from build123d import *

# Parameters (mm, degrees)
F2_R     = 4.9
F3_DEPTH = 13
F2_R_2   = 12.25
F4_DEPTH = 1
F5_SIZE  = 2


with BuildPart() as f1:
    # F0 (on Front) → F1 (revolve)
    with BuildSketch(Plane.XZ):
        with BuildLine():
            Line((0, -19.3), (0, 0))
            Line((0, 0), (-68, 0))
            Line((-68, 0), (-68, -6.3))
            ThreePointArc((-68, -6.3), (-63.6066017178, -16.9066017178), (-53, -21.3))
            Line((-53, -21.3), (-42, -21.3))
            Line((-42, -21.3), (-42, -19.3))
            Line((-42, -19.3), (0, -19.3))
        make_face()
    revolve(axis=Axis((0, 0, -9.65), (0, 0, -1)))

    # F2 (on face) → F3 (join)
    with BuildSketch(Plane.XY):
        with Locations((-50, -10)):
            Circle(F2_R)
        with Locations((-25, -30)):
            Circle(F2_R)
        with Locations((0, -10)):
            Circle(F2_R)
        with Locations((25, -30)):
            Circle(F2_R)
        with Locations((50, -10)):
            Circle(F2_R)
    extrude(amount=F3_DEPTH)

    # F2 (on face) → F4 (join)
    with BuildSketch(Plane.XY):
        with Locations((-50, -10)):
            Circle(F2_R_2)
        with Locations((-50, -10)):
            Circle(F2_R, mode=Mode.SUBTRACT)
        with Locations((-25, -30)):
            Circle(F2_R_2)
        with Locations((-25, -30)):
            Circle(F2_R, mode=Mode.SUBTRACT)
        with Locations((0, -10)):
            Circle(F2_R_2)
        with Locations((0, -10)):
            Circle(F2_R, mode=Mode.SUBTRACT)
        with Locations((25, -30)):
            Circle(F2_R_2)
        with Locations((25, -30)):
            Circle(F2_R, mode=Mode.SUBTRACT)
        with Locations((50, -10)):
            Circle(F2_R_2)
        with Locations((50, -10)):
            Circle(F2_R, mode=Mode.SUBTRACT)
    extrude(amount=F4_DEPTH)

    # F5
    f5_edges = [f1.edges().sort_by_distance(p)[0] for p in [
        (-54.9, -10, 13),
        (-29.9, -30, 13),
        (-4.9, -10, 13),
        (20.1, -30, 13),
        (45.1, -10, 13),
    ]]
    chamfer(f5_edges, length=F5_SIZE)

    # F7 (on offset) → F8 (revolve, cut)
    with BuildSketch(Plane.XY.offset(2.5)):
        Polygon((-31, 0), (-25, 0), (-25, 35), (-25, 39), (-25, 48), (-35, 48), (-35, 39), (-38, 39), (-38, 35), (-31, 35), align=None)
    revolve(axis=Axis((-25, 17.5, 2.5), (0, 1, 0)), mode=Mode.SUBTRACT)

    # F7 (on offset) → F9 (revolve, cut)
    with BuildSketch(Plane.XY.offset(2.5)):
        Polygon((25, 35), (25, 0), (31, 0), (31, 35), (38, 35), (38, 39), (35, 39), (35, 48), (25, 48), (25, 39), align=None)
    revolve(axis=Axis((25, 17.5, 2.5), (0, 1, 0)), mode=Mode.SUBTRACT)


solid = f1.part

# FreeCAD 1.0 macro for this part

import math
import FreeCAD as App
import Part
import Sketcher

V = App.Vector
Q = App.Units.Quantity


def edges_at(feature, points):
    """Names of the edges that pass closest to the given points."""
    edges = feature.Shape.Edges
    near = lambda p: min(range(len(edges)), key=lambda i: edges[i].distToShape(Part.Vertex(*p))[0])
    return sorted({f"Edge{near(p) + 1}" for p in points})


def add_polygon(sketch, points):
    """Adds a closed chain of lines whose ends are joined by coincident constraints."""
    first, n = sketch.GeometryCount, len(points)
    for a, b in zip(points, points[1:] + points[:1]):
        sketch.addGeometry(Part.LineSegment(App.Vector(*a, 0), App.Vector(*b, 0)), False)
    for i in range(n):
        sketch.addConstraint(Sketcher.Constraint("Coincident", first + i, 2, first + (i + 1) % n, 1))

doc = App.newDocument("Part")
params = doc.addObject("Spreadsheet::Sheet", "Params")
for row, (alias, value) in enumerate([
    ("sketch1_radius", "15 mm"),
    ("sketch1_width", "68 mm"),
    ("sketch1_width2", "11 mm"),
    ("sketch1_height", "2 mm"),
    ("sketch1_height2", "19.3 mm"),
    ("revolution_angle", "360 deg"),
    ("sketch2_diameter", "9.8 mm"),
    ("pad1_length", "13 mm"),
    ("sketch3_diameter", "24.5 mm"),
    ("sketch3_diameter2", "9.8 mm"),
    ("pad2_length", "1 mm"),
    ("chamfer_size", "2 mm"),
    ("sketch4_width", "6 mm"),
    ("sketch4_width2", "10 mm"),
    ("sketch4_width3", "3 mm"),
    ("sketch4_height", "48 mm"),
    ("sketch4_height2", "9 mm"),
    ("groove_angle", "360 deg"),
    ("sketch5_width", "6 mm"),
    ("sketch5_width2", "7 mm"),
    ("sketch5_width3", "3 mm"),
    ("sketch5_height", "35 mm"),
    ("sketch5_height2", "4 mm"),
    ("groove2_angle", "360 deg"),
], start=1):
    params.set(f"A{row}", alias)
    params.set(f"B{row}", "=" + value)
    params.setAlias(f"B{row}", alias)

body = doc.addObject("PartDesign::Body", "Body")

sketch1 = body.newObject("Sketcher::SketchObject", "Sketch")
sketch1.AttachmentSupport = (doc.getObject("XZ_Plane"), [""])
sketch1.MapMode = "FlatFace"
sketch1.addGeometry([
    Part.LineSegment(V(0, -19.3, 0), V(0, 0, 0)),
    Part.LineSegment(V(0, 0, 0), V(-68, 0, 0)),
    Part.LineSegment(V(-68, 0, 0), V(-68, -6.3, 0)),
    Part.ArcOfCircle(Part.Circle(V(-53, -6.3, 0), V(0, 0, 1), 15), math.radians(180), math.radians(270)),
    Part.LineSegment(V(-53, -21.3, 0), V(-42, -21.3, 0)),
    Part.LineSegment(V(-42, -21.3, 0), V(-42, -19.3, 0)),
    Part.LineSegment(V(-42, -19.3, 0), V(0, -19.3, 0)),
], False)
sketch1.addConstraint([
    Sketcher.Constraint("Coincident", 0, 2, 1, 1),
    Sketcher.Constraint("Coincident", 1, 2, 2, 1),
    Sketcher.Constraint("Tangent", 2, 2, 3, 1),
    Sketcher.Constraint("Tangent", 3, 2, 4, 1),
    Sketcher.Constraint("Coincident", 4, 2, 5, 1),
    Sketcher.Constraint("Coincident", 5, 2, 6, 1),
    Sketcher.Constraint("Coincident", 6, 2, 0, 1),
    Sketcher.Constraint("Vertical", 0),
    Sketcher.Constraint("Horizontal", 1),
    Sketcher.Constraint("Vertical", 2),
    Sketcher.Constraint("Horizontal", 4),
    Sketcher.Constraint("Vertical", 5),
    Sketcher.Constraint("Horizontal", 6),
    Sketcher.Constraint("Coincident", 0, 2, -1, 1),
    Sketcher.Constraint("Radius", 3, Q("15 mm")),
    Sketcher.Constraint("DistanceX", 1, 2, 1, 1, Q("68 mm")),
    Sketcher.Constraint("DistanceX", 4, 1, 4, 2, Q("11 mm")),
    Sketcher.Constraint("DistanceY", 5, 1, 5, 2, Q("2 mm")),
    Sketcher.Constraint("DistanceY", 0, 1, 0, 2, Q("19.3 mm")),
])
sketch1.setExpression("Constraints[14]", "Params.sketch1_radius")
sketch1.setExpression("Constraints[15]", "Params.sketch1_width")
sketch1.setExpression("Constraints[16]", "Params.sketch1_width2")
sketch1.setExpression("Constraints[17]", "Params.sketch1_height")
sketch1.setExpression("Constraints[18]", "Params.sketch1_height2")
revolution = body.newObject("PartDesign::Revolution", "Revolution")
revolution.Profile = sketch1
revolution.ReferenceAxis = (sketch1, ["V_Axis"])
revolution.setExpression("Angle", "Params.revolution_angle")

sketch2 = body.newObject("Sketcher::SketchObject", "Sketch001")
sketch2.AttachmentSupport = (doc.getObject("XY_Plane"), [""])
sketch2.MapMode = "FlatFace"
sketch2.addGeometry([
    Part.Circle(V(-50, -10, 0), V(0, 0, 1), 4.9),
    Part.Circle(V(-25, -30, 0), V(0, 0, 1), 4.9),
    Part.Circle(V(0, -10, 0), V(0, 0, 1), 4.9),
    Part.Circle(V(25, -30, 0), V(0, 0, 1), 4.9),
    Part.Circle(V(50, -10, 0), V(0, 0, 1), 4.9),
], False)
sketch2.addConstraint([
    Sketcher.Constraint("Equal", 0, 1),
    Sketcher.Constraint("Equal", 1, 2),
    Sketcher.Constraint("Equal", 2, 3),
    Sketcher.Constraint("Equal", 3, 4),
    Sketcher.Constraint("Symmetric", 1, 3, 3, 3, -2),
    Sketcher.Constraint("Symmetric", 0, 3, 4, 3, -2),
    Sketcher.Constraint("PointOnObject", 2, 3, -2),
    Sketcher.Constraint("Horizontal", 0, 3, 2, 3),
    Sketcher.Constraint("Diameter", 0, Q("9.8 mm")),
    Sketcher.Constraint("DistanceX", 0, 3, -1, 1, Q("50 mm")),
    Sketcher.Constraint("DistanceY", 0, 3, -1, 1, Q("10 mm")),
    Sketcher.Constraint("DistanceX", 1, 3, -1, 1, Q("25 mm")),
    Sketcher.Constraint("DistanceY", 1, 3, -1, 1, Q("30 mm")),
])
sketch2.setExpression("Constraints[8]", "Params.sketch2_diameter")
pad1 = body.newObject("PartDesign::Pad", "Pad")
pad1.Profile = sketch2
pad1.setExpression("Length", "Params.pad1_length")

sketch3 = body.newObject("Sketcher::SketchObject", "Sketch002")
sketch3.AttachmentSupport = (doc.getObject("XY_Plane"), [""])
sketch3.MapMode = "FlatFace"
sketch3.addGeometry([
    Part.Circle(V(-50, -10, 0), V(0, 0, 1), 12.2),
    Part.Circle(V(-50, -10, 0), V(0, 0, 1), 4.9),
    Part.Circle(V(-25, -30, 0), V(0, 0, 1), 12.2),
    Part.Circle(V(-25, -30, 0), V(0, 0, 1), 4.9),
    Part.Circle(V(0, -10, 0), V(0, 0, 1), 12.2),
    Part.Circle(V(0, -10, 0), V(0, 0, 1), 4.9),
    Part.Circle(V(25, -30, 0), V(0, 0, 1), 12.2),
    Part.Circle(V(25, -30, 0), V(0, 0, 1), 4.9),
    Part.Circle(V(50, -10, 0), V(0, 0, 1), 12.2),
    Part.Circle(V(50, -10, 0), V(0, 0, 1), 4.9),
], False)
sketch3.addConstraint([
    Sketcher.Constraint("Coincident", 1, 3, 0, 3),
    Sketcher.Constraint("Coincident", 3, 3, 2, 3),
    Sketcher.Constraint("Coincident", 5, 3, 4, 3),
    Sketcher.Constraint("Coincident", 7, 3, 6, 3),
    Sketcher.Constraint("Coincident", 9, 3, 8, 3),
    Sketcher.Constraint("Equal", 0, 2),
    Sketcher.Constraint("Equal", 1, 3),
    Sketcher.Constraint("Equal", 2, 4),
    Sketcher.Constraint("Equal", 3, 5),
    Sketcher.Constraint("Equal", 4, 6),
    Sketcher.Constraint("Equal", 5, 7),
    Sketcher.Constraint("Equal", 6, 8),
    Sketcher.Constraint("Equal", 7, 9),
    Sketcher.Constraint("Symmetric", 2, 3, 6, 3, -2),
    Sketcher.Constraint("Symmetric", 0, 3, 8, 3, -2),
    Sketcher.Constraint("PointOnObject", 4, 3, -2),
    Sketcher.Constraint("Horizontal", 1, 3, 4, 3),
    Sketcher.Constraint("Diameter", 0, Q("24.5 mm")),
    Sketcher.Constraint("Diameter", 1, Q("9.8 mm")),
    Sketcher.Constraint("DistanceX", 0, 3, -1, 1, Q("50 mm")),
    Sketcher.Constraint("DistanceY", 0, 3, -1, 1, Q("10 mm")),
    Sketcher.Constraint("DistanceX", 2, 3, -1, 1, Q("25 mm")),
    Sketcher.Constraint("DistanceY", 2, 3, -1, 1, Q("30 mm")),
])
sketch3.setExpression("Constraints[17]", "Params.sketch3_diameter")
sketch3.setExpression("Constraints[18]", "Params.sketch3_diameter2")
pad2 = body.newObject("PartDesign::Pad", "Pad001")
pad2.Profile = sketch3
pad2.setExpression("Length", "Params.pad2_length")
doc.recompute()

chamfer = body.newObject("PartDesign::Chamfer", "Chamfer")
chamfer.Base = (pad2, edges_at(pad2, [
    (-54.9, -10, 13),
    (-29.9, -30, 13),
    (-4.9, -10, 13),
    (20.1, -30, 13),
    (45.1, -10, 13),
]))
chamfer.setExpression("Size", "Params.chamfer_size")

sketch4 = body.newObject("Sketcher::SketchObject", "Sketch003")
sketch4.AttachmentSupport = (doc.getObject("XY_Plane"), [""])
sketch4.MapMode = "FlatFace"
sketch4.AttachmentOffset = App.Placement(V(0, 0, 2.5), App.Rotation())
add_polygon(sketch4, [(-31, 0), (-25, 0), (-25, 48), (-35, 48), (-35, 39), (-38, 39), (-38, 35), (-31, 35)])
sketch4.addGeometry(Part.LineSegment(V(-25, 0, 0), V(-25, 48, 0)), True)
sketch4.addConstraint([
    Sketcher.Constraint("Horizontal", 0),
    Sketcher.Constraint("Vertical", 1),
    Sketcher.Constraint("Horizontal", 2),
    Sketcher.Constraint("Vertical", 3),
    Sketcher.Constraint("Horizontal", 4),
    Sketcher.Constraint("Vertical", 5),
    Sketcher.Constraint("Horizontal", 6),
    Sketcher.Constraint("Vertical", 7),
    Sketcher.Constraint("Vertical", 8),
    Sketcher.Constraint("Coincident", 8, 1, 0, 2),
    Sketcher.Constraint("PointOnObject", 0, 2, -1),
    Sketcher.Constraint("Horizontal", 2, 2, 8, 2),
    Sketcher.Constraint("DistanceX", 0, 1, 0, 2, Q("6 mm")),
    Sketcher.Constraint("DistanceX", 2, 2, 2, 1, Q("10 mm")),
    Sketcher.Constraint("DistanceX", 4, 2, 4, 1, Q("3 mm")),
    Sketcher.Constraint("DistanceY", 1, 1, 1, 2, Q("48 mm")),
    Sketcher.Constraint("DistanceY", 3, 2, 3, 1, Q("9 mm")),
    Sketcher.Constraint("DistanceY", 5, 2, 5, 1, Q("4 mm")),
    Sketcher.Constraint("DistanceX", 0, 2, -1, 1, Q("25 mm")),
])
sketch4.setExpression("Constraints[20]", "Params.sketch4_width")
sketch4.setExpression("Constraints[21]", "Params.sketch4_width2")
sketch4.setExpression("Constraints[22]", "Params.sketch4_width3")
sketch4.setExpression("Constraints[23]", "Params.sketch4_height")
sketch4.setExpression("Constraints[24]", "Params.sketch4_height2")
groove = body.newObject("PartDesign::Groove", "Groove")
groove.Profile = sketch4
groove.ReferenceAxis = (sketch4, ["Axis0"])
groove.setExpression("Angle", "Params.groove_angle")

sketch5 = body.newObject("Sketcher::SketchObject", "Sketch004")
sketch5.AttachmentSupport = (doc.getObject("XY_Plane"), [""])
sketch5.MapMode = "FlatFace"
sketch5.AttachmentOffset = App.Placement(V(0, 0, 2.5), App.Rotation())
add_polygon(sketch5, [(25, 0), (31, 0), (31, 35), (38, 35), (38, 39), (35, 39), (35, 48), (25, 48)])
sketch5.addGeometry(Part.LineSegment(V(25, 0, 0), V(25, 48, 0)), True)
sketch5.addConstraint([
    Sketcher.Constraint("Horizontal", 0),
    Sketcher.Constraint("Vertical", 1),
    Sketcher.Constraint("Horizontal", 2),
    Sketcher.Constraint("Vertical", 3),
    Sketcher.Constraint("Horizontal", 4),
    Sketcher.Constraint("Vertical", 5),
    Sketcher.Constraint("Horizontal", 6),
    Sketcher.Constraint("Vertical", 7),
    Sketcher.Constraint("Vertical", 8),
    Sketcher.Constraint("Coincident", 8, 1, 7, 2),
    Sketcher.Constraint("PointOnObject", 0, 2, -1),
    Sketcher.Constraint("Horizontal", 5, 2, 8, 2),
    Sketcher.Constraint("DistanceX", 0, 1, 0, 2, Q("6 mm")),
    Sketcher.Constraint("DistanceX", 2, 1, 2, 2, Q("7 mm")),
    Sketcher.Constraint("DistanceX", 4, 2, 4, 1, Q("3 mm")),
    Sketcher.Constraint("DistanceY", 1, 1, 1, 2, Q("35 mm")),
    Sketcher.Constraint("DistanceY", 3, 1, 3, 2, Q("4 mm")),
    Sketcher.Constraint("DistanceY", 5, 1, 5, 2, Q("9 mm")),
    Sketcher.Constraint("DistanceX", -1, 1, 0, 2, Q("31 mm")),
])
sketch5.setExpression("Constraints[20]", "Params.sketch5_width")
sketch5.setExpression("Constraints[21]", "Params.sketch5_width2")
sketch5.setExpression("Constraints[22]", "Params.sketch5_width3")
sketch5.setExpression("Constraints[23]", "Params.sketch5_height")
sketch5.setExpression("Constraints[24]", "Params.sketch5_height2")
groove2 = body.newObject("PartDesign::Groove", "Groove001")
groove2.Profile = sketch5
groove2.ReferenceAxis = (sketch5, ["Axis0"])
groove2.setExpression("Angle", "Params.groove2_angle")

doc.recompute()
